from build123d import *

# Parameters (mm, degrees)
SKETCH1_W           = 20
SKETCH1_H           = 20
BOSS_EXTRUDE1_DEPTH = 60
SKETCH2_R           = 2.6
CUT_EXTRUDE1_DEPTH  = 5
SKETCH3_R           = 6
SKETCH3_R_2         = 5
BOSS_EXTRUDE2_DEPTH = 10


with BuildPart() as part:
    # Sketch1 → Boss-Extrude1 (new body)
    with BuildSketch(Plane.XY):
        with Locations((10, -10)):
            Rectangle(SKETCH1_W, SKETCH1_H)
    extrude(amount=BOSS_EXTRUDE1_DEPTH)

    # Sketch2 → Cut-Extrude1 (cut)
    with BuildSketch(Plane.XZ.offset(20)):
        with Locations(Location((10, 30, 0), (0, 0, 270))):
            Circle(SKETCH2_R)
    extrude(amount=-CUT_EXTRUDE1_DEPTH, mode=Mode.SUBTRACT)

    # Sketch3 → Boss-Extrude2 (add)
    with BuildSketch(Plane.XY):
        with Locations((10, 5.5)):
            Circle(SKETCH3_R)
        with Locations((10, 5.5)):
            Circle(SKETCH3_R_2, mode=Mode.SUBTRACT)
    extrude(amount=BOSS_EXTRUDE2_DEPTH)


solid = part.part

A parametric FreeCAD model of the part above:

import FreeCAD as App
import Part
import Sketcher

V = App.Vector
Q = App.Units.Quantity


def add_polygon(sketch, points):
    """Adds a closed chain of lines whose ends are joined by coincident constraints."""
    first, n = sketch.GeometryCount, len(points)
    for a, b in zip(points, points[1:] + points[:1]):
        sketch.addGeometry(Part.LineSegment(App.Vector(*a, 0), App.Vector(*b, 0)), False)
    for i in range(n):
        sketch.addConstraint(Sketcher.Constraint("Coincident", first + i, 2, first + (i + 1) % n, 1))

doc = App.newDocument("Part")
params = doc.addObject("Spreadsheet::Sheet", "Params")
for row, (alias, value) in enumerate([
    ("sketch1_width", "20 mm"),
    ("pad1_length", "60 mm"),
    ("sketch2_diameter", "5.2 mm"),
    ("pocket1_length", "5 mm"),
    ("sketch3_diameter", "12 mm"),
    ("sketch3_diameter2", "10 mm"),
    ("pad2_length", "10 mm"),
], start=1):
    params.set(f"A{row}", alias)
    params.set(f"B{row}", "=" + value)
    params.setAlias(f"B{row}", alias)

body = doc.addObject("PartDesign::Body", "Body")

# Sketch on XY plane
sketch1 = body.newObject("Sketcher::SketchObject", "Sketch")
sketch1.AttachmentSupport = (doc.getObject("XY_Plane"), [""])
sketch1.MapMode = "FlatFace"
add_polygon(sketch1, [(0, 0), (0, -20), (20, -20), (20, 0)])  # lines 0-3
sketch1.addConstraint(Sketcher.Constraint("Vertical", 0))
sketch1.addConstraint(Sketcher.Constraint("Horizontal", 1))
sketch1.addConstraint(Sketcher.Constraint("Vertical", 2))
sketch1.addConstraint(Sketcher.Constraint("Horizontal", 3))
sketch1.addConstraint(Sketcher.Constraint("Coincident", 3, 2, -1, 1))
sketch1.addConstraint(Sketcher.Constraint("Equal", 3, 0))
sketch1.addConstraint(Sketcher.Constraint("DistanceX", 1, 1, 1, 2, Q("20 mm")))
sketch1.setExpression("Constraints[10]", "Params.sketch1_width")
pad1 = body.newObject("PartDesign::Pad", "Pad")
pad1.Profile = sketch1
pad1.setExpression("Length", "Params.pad1_length")

# Sketch on XZ plane
sketch2 = body.newObject("Sketcher::SketchObject", "Sketch001")
sketch2.AttachmentSupport = (doc.getObject("XZ_Plane"), [""])
sketch2.MapMode = "FlatFace"
sketch2.AttachmentOffset = App.Placement(V(0, 0, 20), App.Rotation())
sketch2.addGeometry(Part.Circle(V(10, 30, 0), V(0, 0, 1), 2.6), False)
sketch2.addConstraint(Sketcher.Constraint("Diameter", 0, Q("5.2 mm")))
sketch2.addConstraint(Sketcher.Constraint("DistanceX", -1, 1, 0, 3, Q("10 mm")))
sketch2.addConstraint(Sketcher.Constraint("DistanceY", -1, 1, 0, 3, Q("30 mm")))
sketch2.setExpression("Constraints[0]", "Params.sketch2_diameter")
pocket1 = body.newObject("PartDesign::Pocket", "Pocket")
pocket1.Profile = sketch2
pocket1.setExpression("Length", "Params.pocket1_length")

# Sketch on XY plane
sketch3 = body.newObject("Sketcher::SketchObject", "Sketch002")
sketch3.AttachmentSupport = (doc.getObject("XY_Plane"), [""])
sketch3.MapMode = "FlatFace"
sketch3.addGeometry(Part.Circle(V(10, 6, 0), V(0, 0, 1), 6), False)
sketch3.addGeometry(Part.Circle(V(10, 6, 0), V(0, 0, 1), 5), False)
sketch3.addConstraint(Sketcher.Constraint("Coincident", 1, 3, 0, 3))
sketch3.addConstraint(Sketcher.Constraint("Diameter", 0, Q("12 mm")))
sketch3.addConstraint(Sketcher.Constraint("Diameter", 1, Q("10 mm")))
sketch3.addConstraint(Sketcher.Constraint("DistanceX", -1, 1, 0, 3, Q("10 mm")))
sketch3.addConstraint(Sketcher.Constraint("DistanceY", -1, 1, 0, 3, Q("5.5 mm")))
sketch3.setExpression("Constraints[1]", "Params.sketch3_diameter")
sketch3.setExpression("Constraints[2]", "Params.sketch3_diameter2")
pad2 = body.newObject("PartDesign::Pad", "Pad001")
pad2.Profile = sketch3
pad2.setExpression("Length", "Params.pad2_length")

doc.recompute()
